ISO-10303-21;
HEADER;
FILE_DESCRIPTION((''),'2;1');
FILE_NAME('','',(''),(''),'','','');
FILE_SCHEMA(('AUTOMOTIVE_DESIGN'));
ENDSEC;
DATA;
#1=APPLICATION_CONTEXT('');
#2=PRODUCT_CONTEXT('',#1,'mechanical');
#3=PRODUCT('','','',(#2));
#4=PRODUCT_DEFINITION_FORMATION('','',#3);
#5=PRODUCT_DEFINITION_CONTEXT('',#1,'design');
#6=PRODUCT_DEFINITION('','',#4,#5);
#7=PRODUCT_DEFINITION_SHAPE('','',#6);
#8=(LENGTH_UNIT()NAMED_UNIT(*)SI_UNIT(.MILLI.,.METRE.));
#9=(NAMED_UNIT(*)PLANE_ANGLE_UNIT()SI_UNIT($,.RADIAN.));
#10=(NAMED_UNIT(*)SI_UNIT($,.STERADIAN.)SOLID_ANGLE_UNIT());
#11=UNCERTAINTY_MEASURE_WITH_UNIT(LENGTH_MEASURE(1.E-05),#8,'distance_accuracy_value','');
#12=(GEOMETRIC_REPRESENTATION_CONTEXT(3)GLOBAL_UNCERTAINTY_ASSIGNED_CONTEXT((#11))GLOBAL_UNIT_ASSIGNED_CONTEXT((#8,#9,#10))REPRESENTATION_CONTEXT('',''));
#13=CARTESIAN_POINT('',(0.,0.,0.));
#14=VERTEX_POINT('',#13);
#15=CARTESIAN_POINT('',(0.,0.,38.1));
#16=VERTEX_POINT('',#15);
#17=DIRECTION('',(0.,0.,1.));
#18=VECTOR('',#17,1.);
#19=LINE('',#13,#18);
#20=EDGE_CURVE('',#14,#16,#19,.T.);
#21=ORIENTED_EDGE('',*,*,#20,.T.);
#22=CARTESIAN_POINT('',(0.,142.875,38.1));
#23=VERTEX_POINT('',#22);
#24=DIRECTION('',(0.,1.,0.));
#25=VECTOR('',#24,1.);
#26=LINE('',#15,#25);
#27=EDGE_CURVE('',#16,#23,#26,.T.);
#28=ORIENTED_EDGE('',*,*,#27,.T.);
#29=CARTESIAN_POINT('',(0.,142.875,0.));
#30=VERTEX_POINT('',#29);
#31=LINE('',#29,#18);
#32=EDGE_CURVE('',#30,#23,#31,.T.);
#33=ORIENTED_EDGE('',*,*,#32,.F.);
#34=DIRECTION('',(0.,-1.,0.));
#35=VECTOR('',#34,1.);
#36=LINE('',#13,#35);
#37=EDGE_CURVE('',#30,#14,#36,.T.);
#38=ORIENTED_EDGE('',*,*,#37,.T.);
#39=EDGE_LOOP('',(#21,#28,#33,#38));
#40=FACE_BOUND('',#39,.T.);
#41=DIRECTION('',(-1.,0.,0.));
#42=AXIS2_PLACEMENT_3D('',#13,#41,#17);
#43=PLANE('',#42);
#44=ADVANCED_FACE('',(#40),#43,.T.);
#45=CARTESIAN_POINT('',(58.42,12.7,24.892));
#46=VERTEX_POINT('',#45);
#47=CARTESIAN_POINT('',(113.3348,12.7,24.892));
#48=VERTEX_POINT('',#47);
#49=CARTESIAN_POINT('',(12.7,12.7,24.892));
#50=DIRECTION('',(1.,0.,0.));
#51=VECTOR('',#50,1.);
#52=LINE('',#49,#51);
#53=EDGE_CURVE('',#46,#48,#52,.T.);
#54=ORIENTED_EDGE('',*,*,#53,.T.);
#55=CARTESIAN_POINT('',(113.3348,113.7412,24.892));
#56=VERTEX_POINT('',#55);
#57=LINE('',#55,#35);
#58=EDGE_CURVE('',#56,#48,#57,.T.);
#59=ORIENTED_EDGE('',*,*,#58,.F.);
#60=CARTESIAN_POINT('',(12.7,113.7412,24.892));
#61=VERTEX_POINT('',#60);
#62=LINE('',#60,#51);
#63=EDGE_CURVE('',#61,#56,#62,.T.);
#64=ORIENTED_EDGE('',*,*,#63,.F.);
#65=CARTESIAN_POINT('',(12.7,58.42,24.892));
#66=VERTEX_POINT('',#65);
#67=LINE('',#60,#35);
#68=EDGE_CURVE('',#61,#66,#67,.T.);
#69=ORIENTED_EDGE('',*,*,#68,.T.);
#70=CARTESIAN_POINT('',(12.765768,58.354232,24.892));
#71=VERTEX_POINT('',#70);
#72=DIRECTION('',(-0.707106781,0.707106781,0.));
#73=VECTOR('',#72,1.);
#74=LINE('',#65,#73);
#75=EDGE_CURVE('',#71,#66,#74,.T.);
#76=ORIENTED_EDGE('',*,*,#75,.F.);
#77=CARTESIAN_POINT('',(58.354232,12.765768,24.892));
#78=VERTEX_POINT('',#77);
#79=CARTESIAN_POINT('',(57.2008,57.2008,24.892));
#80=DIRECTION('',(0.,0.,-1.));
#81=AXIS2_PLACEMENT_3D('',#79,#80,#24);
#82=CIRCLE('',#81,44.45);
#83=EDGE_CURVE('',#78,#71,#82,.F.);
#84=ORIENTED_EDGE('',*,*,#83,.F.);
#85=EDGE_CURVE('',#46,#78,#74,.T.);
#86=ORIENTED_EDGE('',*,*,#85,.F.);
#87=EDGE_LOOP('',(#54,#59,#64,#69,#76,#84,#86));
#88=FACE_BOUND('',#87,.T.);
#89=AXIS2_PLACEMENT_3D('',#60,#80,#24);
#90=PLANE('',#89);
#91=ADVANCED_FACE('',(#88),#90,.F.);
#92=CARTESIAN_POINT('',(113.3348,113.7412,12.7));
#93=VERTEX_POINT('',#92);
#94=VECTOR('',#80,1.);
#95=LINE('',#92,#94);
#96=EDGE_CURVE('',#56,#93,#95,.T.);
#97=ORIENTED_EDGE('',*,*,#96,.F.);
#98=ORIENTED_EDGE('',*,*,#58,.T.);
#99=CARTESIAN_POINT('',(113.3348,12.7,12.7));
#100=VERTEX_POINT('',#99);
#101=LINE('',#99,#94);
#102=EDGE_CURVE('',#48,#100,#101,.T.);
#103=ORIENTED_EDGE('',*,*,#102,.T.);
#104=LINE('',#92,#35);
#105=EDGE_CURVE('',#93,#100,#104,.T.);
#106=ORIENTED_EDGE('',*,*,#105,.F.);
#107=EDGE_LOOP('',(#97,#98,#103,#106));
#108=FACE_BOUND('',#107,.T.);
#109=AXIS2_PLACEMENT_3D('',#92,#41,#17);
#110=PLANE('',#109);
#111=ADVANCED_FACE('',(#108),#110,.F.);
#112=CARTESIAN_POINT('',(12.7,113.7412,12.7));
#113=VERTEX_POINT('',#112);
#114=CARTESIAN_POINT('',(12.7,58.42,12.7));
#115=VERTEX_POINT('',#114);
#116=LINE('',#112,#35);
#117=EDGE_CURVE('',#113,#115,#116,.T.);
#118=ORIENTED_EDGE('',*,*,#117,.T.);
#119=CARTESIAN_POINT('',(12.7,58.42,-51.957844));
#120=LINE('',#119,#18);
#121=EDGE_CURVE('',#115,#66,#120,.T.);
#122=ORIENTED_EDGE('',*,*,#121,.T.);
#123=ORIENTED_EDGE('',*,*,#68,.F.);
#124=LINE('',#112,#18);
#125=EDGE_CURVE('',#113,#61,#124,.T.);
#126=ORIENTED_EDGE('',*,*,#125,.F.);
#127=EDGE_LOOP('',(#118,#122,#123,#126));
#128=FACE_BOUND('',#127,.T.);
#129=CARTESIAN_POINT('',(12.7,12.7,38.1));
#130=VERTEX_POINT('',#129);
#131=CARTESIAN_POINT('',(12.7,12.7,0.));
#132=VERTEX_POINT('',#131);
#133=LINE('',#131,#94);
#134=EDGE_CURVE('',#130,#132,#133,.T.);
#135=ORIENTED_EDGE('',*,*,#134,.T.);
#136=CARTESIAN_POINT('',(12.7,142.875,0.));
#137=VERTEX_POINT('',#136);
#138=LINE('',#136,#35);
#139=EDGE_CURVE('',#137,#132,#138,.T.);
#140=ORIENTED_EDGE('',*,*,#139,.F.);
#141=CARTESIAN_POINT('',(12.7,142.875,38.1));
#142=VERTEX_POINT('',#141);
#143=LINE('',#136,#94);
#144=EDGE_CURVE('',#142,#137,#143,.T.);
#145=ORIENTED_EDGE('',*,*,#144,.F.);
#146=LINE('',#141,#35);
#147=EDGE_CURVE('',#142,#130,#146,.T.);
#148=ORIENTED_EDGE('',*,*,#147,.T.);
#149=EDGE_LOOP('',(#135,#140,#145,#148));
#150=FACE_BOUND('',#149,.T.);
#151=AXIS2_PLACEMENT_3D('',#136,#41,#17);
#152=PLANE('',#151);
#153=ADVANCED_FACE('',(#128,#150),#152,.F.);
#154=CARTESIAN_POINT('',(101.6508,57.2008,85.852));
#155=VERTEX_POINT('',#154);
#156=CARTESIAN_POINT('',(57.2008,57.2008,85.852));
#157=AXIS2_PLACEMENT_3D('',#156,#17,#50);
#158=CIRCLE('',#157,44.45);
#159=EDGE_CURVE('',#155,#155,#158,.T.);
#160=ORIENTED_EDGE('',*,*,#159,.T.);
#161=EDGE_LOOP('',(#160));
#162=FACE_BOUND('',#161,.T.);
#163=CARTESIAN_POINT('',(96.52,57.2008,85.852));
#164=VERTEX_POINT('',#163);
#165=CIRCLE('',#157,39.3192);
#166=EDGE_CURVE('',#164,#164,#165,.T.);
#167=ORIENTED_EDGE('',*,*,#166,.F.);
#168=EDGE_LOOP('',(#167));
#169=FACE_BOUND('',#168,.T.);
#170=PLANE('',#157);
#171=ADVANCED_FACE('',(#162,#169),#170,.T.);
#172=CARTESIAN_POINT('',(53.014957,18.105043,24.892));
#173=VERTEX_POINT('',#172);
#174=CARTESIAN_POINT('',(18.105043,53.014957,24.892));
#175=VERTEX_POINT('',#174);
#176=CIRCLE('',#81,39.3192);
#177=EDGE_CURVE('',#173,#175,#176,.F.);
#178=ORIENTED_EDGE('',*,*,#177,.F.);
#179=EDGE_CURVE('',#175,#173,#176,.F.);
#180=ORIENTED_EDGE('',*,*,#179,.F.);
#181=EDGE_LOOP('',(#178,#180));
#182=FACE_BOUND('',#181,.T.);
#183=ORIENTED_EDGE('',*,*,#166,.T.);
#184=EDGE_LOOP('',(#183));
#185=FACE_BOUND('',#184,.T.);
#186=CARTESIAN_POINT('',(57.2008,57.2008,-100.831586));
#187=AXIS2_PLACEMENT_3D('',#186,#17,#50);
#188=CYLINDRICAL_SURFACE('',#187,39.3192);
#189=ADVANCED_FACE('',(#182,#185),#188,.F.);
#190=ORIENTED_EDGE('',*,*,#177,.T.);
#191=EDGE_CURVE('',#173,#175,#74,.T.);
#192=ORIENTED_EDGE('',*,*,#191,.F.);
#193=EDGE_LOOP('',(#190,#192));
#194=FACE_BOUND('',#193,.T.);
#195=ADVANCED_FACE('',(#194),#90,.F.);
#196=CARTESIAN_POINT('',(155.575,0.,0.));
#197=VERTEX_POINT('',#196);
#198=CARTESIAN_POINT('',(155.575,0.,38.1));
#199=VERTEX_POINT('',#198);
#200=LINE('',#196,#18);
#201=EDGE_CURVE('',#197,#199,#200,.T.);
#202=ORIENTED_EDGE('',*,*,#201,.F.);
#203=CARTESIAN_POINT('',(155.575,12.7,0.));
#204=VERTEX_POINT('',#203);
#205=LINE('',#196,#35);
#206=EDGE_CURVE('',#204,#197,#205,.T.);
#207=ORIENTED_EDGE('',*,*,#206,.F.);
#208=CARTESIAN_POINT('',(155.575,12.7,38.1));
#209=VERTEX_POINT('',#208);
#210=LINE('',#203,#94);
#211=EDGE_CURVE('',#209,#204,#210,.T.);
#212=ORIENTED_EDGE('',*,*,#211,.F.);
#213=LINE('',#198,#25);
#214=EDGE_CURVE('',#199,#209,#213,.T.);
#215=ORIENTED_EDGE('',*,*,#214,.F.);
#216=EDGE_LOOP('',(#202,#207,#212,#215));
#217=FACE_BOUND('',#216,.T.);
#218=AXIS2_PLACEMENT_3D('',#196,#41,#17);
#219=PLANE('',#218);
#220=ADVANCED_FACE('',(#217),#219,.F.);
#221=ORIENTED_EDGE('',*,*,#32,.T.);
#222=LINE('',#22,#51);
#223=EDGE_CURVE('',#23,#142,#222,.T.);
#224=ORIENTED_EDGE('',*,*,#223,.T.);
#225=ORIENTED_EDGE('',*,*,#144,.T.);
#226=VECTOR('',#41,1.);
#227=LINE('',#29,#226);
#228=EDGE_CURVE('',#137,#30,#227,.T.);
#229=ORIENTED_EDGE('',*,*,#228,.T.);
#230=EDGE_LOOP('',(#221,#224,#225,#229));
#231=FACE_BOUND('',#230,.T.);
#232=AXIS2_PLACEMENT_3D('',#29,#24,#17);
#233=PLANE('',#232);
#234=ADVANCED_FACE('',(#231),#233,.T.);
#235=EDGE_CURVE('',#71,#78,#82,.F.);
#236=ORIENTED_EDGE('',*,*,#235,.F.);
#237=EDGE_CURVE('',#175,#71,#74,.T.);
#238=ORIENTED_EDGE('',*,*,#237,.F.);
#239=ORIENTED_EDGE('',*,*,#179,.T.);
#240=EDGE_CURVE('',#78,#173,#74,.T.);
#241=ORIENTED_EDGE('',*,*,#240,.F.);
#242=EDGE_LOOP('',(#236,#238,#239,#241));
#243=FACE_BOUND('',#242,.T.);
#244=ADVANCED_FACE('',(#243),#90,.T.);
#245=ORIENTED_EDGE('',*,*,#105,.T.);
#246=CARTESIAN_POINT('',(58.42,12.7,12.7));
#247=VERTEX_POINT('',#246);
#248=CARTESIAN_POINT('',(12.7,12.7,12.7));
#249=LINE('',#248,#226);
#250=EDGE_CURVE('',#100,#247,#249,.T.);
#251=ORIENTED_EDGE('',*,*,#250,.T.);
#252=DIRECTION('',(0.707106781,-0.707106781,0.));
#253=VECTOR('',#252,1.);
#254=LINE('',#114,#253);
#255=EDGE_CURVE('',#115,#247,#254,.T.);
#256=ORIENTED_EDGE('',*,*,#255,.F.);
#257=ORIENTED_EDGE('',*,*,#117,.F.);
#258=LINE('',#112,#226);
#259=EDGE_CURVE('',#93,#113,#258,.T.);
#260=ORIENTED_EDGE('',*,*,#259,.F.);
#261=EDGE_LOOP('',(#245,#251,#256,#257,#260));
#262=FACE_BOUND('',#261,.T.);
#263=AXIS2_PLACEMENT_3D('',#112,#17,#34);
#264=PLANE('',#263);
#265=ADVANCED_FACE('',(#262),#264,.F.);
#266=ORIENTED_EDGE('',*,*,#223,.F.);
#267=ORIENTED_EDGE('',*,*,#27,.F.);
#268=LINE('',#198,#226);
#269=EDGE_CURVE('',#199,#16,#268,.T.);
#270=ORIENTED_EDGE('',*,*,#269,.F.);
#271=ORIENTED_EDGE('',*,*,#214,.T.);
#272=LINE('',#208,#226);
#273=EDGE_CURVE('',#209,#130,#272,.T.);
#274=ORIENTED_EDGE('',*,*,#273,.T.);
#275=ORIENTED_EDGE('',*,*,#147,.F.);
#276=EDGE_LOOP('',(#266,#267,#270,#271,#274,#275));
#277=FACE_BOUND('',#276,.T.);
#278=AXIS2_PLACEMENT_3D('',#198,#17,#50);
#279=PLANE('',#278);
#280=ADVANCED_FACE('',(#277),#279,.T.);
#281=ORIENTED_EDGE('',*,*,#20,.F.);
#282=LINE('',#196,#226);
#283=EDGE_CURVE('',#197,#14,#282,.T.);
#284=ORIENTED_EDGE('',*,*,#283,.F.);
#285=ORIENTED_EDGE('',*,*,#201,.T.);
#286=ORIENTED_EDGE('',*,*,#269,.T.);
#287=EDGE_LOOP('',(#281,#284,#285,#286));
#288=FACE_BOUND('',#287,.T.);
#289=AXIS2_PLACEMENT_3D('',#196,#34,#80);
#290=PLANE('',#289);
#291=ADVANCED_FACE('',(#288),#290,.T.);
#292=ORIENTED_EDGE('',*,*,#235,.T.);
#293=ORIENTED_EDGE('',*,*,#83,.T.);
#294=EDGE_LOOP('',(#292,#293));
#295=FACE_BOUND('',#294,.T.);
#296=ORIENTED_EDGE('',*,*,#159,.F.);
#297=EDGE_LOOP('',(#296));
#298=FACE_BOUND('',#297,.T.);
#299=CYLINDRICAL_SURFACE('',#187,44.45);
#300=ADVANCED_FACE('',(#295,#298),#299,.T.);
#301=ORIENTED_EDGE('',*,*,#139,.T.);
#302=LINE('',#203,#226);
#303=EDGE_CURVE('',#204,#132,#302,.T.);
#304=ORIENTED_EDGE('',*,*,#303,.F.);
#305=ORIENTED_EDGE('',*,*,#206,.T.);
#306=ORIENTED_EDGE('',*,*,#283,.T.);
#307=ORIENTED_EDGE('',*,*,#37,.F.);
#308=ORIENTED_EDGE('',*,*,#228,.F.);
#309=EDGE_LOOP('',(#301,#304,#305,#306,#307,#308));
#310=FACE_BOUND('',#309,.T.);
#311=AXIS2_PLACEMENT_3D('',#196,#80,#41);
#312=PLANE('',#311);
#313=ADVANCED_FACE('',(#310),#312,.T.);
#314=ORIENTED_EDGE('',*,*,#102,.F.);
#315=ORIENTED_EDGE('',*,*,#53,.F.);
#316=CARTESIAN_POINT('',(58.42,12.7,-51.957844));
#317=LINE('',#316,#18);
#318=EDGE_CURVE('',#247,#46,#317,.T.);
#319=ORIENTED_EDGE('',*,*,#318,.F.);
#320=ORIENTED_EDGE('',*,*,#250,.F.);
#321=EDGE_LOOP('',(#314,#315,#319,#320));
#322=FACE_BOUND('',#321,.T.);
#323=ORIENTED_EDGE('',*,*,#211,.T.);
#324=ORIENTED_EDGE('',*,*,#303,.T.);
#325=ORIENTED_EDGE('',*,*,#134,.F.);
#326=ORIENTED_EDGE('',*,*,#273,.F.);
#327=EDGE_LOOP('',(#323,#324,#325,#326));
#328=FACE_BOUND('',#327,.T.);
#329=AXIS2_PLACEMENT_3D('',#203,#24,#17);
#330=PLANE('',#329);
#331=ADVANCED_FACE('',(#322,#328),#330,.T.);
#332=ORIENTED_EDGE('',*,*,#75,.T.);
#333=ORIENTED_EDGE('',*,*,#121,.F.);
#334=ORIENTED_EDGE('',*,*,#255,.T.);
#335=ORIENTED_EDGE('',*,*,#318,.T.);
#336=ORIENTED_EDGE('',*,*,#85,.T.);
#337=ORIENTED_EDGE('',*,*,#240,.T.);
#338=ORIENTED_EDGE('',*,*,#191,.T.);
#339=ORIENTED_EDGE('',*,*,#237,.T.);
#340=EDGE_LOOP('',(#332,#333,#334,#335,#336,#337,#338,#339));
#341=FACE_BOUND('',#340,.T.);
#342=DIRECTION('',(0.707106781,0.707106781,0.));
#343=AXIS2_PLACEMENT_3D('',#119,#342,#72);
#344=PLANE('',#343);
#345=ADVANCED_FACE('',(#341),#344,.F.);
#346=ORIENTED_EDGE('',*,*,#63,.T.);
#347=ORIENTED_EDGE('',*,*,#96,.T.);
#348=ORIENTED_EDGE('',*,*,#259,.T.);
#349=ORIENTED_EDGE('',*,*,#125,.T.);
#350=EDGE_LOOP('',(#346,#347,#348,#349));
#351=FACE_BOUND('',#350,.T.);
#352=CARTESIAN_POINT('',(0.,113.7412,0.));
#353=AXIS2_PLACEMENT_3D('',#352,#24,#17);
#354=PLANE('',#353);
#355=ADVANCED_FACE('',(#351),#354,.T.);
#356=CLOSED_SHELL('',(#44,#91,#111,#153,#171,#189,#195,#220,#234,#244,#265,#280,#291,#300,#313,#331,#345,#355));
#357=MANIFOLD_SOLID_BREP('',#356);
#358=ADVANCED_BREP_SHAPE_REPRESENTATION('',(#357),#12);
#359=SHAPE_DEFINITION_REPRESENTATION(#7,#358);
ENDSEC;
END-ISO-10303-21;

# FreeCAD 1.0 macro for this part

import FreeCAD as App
import Part
import Sketcher
Q = App.Units.Quantity


def add_polygon(sketch, points):
    """Adds a closed chain of lines whose ends are joined by coincident constraints."""
    first, n = sketch.GeometryCount, len(points)
    for a, b in zip(points, points[1:] + points[:1]):
        sketch.addGeometry(Part.LineSegment(App.Vector(*a, 0), App.Vector(*b, 0)), False)
    for i in range(n):
        sketch.addConstraint(Sketcher.Constraint("Coincident", first + i, 2, first + (i + 1) % n, 1))

doc = App.newDocument("Part")
body = doc.addObject("PartDesign::Body", "Body")

sketch1 = doc.addObject("Sketcher::SketchObject", "Sketch")
body.addObject(sketch1)
sketch1.AttachmentSupport = (doc.YZ_Plane, [""])
sketch1.MapMode = "FlatFace"
add_polygon(sketch1, [(13, 38), (13, 0), (0, 0), (0, 38)])
sketch1.addConstraint([
    Sketcher.Constraint("Vertical", 0),
    Sketcher.Constraint("Horizontal", 1),
    Sketcher.Constraint("Vertical", 2),
    Sketcher.Constraint("Horizontal", 3),
    Sketcher.Constraint("Coincident", 1, 2, -1, 1),
    Sketcher.Constraint("DistanceX", 1, 2, 1, 1, Q("0.5 in")),
    Sketcher.Constraint("DistanceY", 0, 2, 0, 1, Q("1.5 in")),
])
pad1 = doc.addObject("PartDesign::Pad", "Pad")
body.addObject(pad1)
pad1.Profile = sketch1
pad1.Length = Q("6.125 in")

sketch2 = doc.addObject("Sketcher::SketchObject", "Sketch001")
body.addObject(sketch2)
sketch2.AttachmentSupport = (doc.XZ_Plane, [""])
sketch2.MapMode = "FlatFace"
sketch2.AttachmentOffset = App.Placement(App.Vector(0, 0, -0.5 * 25.4), App.Rotation())
add_polygon(sketch2, [(0, 0), (0, 38), (13, 38), (13, 0)])
sketch2.addConstraint([
    Sketcher.Constraint("Vertical", 0),
    Sketcher.Constraint("Horizontal", 1),
    Sketcher.Constraint("Vertical", 2),
    Sketcher.Constraint("Horizontal", 3),
    Sketcher.Constraint("Coincident", 3, 2, -1, 1),
    Sketcher.Constraint("DistanceX", 1, 1, 1, 2, Q("0.5 in")),
    Sketcher.Constraint("DistanceY", 0, 1, 0, 2, Q("1.5 in")),
])
pad2 = doc.addObject("PartDesign::Pad", "Pad001")
body.addObject(pad2)
pad2.Profile = sketch2
pad2.Length = Q("5.125 in")
pad2.Reversed = True

sketch3 = doc.addObject("Sketcher::SketchObject", "Sketch002")
body.addObject(sketch3)
sketch3.AttachmentSupport = (doc.XZ_Plane, [""])
sketch3.MapMode = "FlatFace"
sketch3.AttachmentOffset = App.Placement(App.Vector(0, 0, -0.5 * 25.4), App.Rotation())
add_polygon(sketch3, [(13, 13), (13, 25), (113, 25), (113, 13)])
sketch3.addConstraint([
    Sketcher.Constraint("Vertical", 0),
    Sketcher.Constraint("Horizontal", 1),
    Sketcher.Constraint("Vertical", 2),
    Sketcher.Constraint("Horizontal", 3),
    Sketcher.Constraint("DistanceY", 0, 1, 0, 2, Q("0.48 in")),
    Sketcher.Constraint("DistanceX", -1, 1, 0, 2, Q("0.5 in")),
    Sketcher.Constraint("DistanceY", -1, 1, 2, 2, Q("0.5 in")),
    Sketcher.Constraint("DistanceX", 1, 1, 1, 2, Q("3.962 in")),
])
pad3 = doc.addObject("PartDesign::Pad", "Pad002")
body.addObject(pad3)
pad3.Profile = sketch3
pad3.Length = Q("3.978 in")
pad3.Reversed = True

sketch4 = doc.addObject("Sketcher::SketchObject", "Sketch003")
body.addObject(sketch4)
sketch4.AttachmentSupport = (doc.XY_Plane, [""])
sketch4.MapMode = "FlatFace"
sketch4.AttachmentOffset = App.Placement(App.Vector(0, 0, 0.98 * 25.4), App.Rotation())
add_polygon(sketch4, [(58, 13), (13, 58), (13, 13)])
sketch4.addConstraint([
    Sketcher.Constraint("Vertical", 1),
    Sketcher.Constraint("Horizontal", 2),
    Sketcher.Constraint("Equal", 2, 1),
    Sketcher.Constraint("DistanceX", 2, 1, 2, 2, Q("1.8 in")),
    Sketcher.Constraint("DistanceX", -1, 1, 0, 2, Q("0.5 in")),
    Sketcher.Constraint("DistanceY", -1, 1, 0, 2, Q("2.3 in")),
])
pocket1 = doc.addObject("PartDesign::Pocket", "Pocket")
body.addObject(pocket1)
pocket1.Profile = sketch4
pocket1.Length = Q("0.48 in")

sketch5 = doc.addObject("Sketcher::SketchObject", "Sketch004")
body.addObject(sketch5)
sketch5.AttachmentSupport = (doc.XY_Plane, [""])
sketch5.MapMode = "FlatFace"
sketch5.AttachmentOffset = App.Placement(App.Vector(0, 0, 3.38 * 25.4), App.Rotation())
sketch5.addGeometry([
    Part.Circle(App.Vector(57, 57, 0), App.Vector(0, 0, 1), 44),
    Part.Circle(App.Vector(57, 57, 0), App.Vector(0, 0, 1), 39),
], False)
sketch5.addConstraint([
    Sketcher.Constraint("Coincident", 1, 3, 0, 3),
    Sketcher.Constraint("Diameter", 0, Q("3.5 in")),
    Sketcher.Constraint("Diameter", 1, Q("3.096 in")),
    Sketcher.Constraint("DistanceX", -1, 1, 0, 3, Q("2.252 in")),
    Sketcher.Constraint("DistanceY", -1, 1, 0, 3, Q("2.252 in")),
])
pad4 = doc.addObject("PartDesign::Pad", "Pad003")
body.addObject(pad4)
pad4.Profile = sketch5
pad4.Length = Q("2.4 in")
pad4.Reversed = True

doc.recompute()
